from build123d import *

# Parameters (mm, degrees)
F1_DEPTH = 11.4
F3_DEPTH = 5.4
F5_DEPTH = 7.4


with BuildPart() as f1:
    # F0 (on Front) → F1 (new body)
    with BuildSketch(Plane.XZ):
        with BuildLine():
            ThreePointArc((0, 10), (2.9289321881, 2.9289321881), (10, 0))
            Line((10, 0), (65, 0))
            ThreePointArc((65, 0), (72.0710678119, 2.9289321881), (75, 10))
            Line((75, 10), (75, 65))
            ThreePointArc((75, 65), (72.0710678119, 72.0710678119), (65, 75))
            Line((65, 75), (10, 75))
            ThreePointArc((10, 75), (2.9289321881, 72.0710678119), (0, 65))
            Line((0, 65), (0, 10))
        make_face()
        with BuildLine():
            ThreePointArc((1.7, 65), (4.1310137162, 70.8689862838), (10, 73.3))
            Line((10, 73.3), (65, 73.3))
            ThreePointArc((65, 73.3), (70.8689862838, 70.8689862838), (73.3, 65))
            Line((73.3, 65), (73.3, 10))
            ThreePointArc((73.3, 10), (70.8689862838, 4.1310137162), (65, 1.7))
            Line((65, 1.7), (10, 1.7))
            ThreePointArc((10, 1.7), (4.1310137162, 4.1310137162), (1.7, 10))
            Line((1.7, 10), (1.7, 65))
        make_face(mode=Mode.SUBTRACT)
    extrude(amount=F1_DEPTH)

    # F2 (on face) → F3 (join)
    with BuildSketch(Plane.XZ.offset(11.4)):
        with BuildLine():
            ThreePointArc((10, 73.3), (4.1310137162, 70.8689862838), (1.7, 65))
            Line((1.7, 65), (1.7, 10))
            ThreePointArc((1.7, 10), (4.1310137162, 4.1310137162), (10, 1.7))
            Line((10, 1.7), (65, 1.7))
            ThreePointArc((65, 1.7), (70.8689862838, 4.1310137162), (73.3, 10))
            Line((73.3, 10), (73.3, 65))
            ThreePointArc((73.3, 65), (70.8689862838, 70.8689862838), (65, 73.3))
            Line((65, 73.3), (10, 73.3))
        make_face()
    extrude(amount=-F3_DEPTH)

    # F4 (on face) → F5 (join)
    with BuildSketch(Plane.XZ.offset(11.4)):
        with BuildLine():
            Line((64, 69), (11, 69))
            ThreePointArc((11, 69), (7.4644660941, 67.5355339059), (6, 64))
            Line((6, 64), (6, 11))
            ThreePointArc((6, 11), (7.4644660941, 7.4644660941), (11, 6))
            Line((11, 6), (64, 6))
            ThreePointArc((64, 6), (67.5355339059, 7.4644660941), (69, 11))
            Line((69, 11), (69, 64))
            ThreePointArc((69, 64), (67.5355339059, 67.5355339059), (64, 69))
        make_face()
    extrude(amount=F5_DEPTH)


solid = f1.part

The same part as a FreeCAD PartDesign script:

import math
import FreeCAD as App
import Part
import Sketcher

V = App.Vector
Q = App.Units.Quantity

doc = App.newDocument("Part")
body = doc.addObject("PartDesign::Body", "Body")

sketch1 = doc.addObject("Sketcher::SketchObject", "Sketch")
body.addObject(sketch1)
sketch1.AttachmentSupport = (doc.XZ_Plane, [""])
sketch1.MapMode = "FlatFace"
sketch1.addGeometry(Part.ArcOfCircle(Part.Circle(V(10, 10, 0), V(0, 0, 1), 10), math.radians(180), math.radians(270)), False)
sketch1.addGeometry(Part.LineSegment(V(10, 0, 0), V(65, 0, 0)), False)
sketch1.addGeometry(Part.ArcOfCircle(Part.Circle(V(65, 10, 0), V(0, 0, 1), 10), math.radians(-90), math.radians(0)), False)
sketch1.addGeometry(Part.LineSegment(V(75, 10, 0), V(75, 65, 0)), False)
sketch1.addGeometry(Part.ArcOfCircle(Part.Circle(V(65, 65, 0), V(0, 0, 1), 10), math.radians(0), math.radians(90)), False)
sketch1.addGeometry(Part.LineSegment(V(65, 75, 0), V(10, 75, 0)), False)
sketch1.addGeometry(Part.ArcOfCircle(Part.Circle(V(10, 65, 0), V(0, 0, 1), 10), math.radians(90), math.radians(180)), False)
sketch1.addGeometry(Part.LineSegment(V(0, 65, 0), V(0, 10, 0)), False)
sketch1.addGeometry(Part.LineSegment(V(2, 10, 0), V(2, 65, 0)), False)
sketch1.addGeometry(Part.ArcOfCircle(Part.Circle(V(10, 65, 0), V(0, 0, 1), 8), math.radians(90), math.radians(180)), False)
sketch1.addGeometry(Part.LineSegment(V(10, 73, 0), V(65, 73, 0)), False)
sketch1.addGeometry(Part.ArcOfCircle(Part.Circle(V(65, 65, 0), V(0, 0, 1), 8), math.radians(0), math.radians(90)), False)
sketch1.addGeometry(Part.LineSegment(V(73, 65, 0), V(73, 10, 0)), False)
sketch1.addGeometry(Part.ArcOfCircle(Part.Circle(V(65, 10, 0), V(0, 0, 1), 8), math.radians(-90), math.radians(0)), False)
sketch1.addGeometry(Part.LineSegment(V(65, 2, 0), V(10, 2, 0)), False)
sketch1.addGeometry(Part.ArcOfCircle(Part.Circle(V(10, 10, 0), V(0, 0, 1), 8), math.radians(180), math.radians(270)), False)
sketch1.addConstraint(Sketcher.Constraint("Tangent", 0, 2, 1, 1))
sketch1.addConstraint(Sketcher.Constraint("Tangent", 1, 2, 2, 1))
sketch1.addConstraint(Sketcher.Constraint("Tangent", 2, 2, 3, 1))
sketch1.addConstraint(Sketcher.Constraint("Tangent", 3, 2, 4, 1))
sketch1.addConstraint(Sketcher.Constraint("Tangent", 4, 2, 5, 1))
sketch1.addConstraint(Sketcher.Constraint("Tangent", 5, 2, 6, 1))
sketch1.addConstraint(Sketcher.Constraint("Tangent", 6, 2, 7, 1))
sketch1.addConstraint(Sketcher.Constraint("Tangent", 7, 2, 0, 1))
sketch1.addConstraint(Sketcher.Constraint("Tangent", 8, 2, 9, 2))
sketch1.addConstraint(Sketcher.Constraint("Tangent", 9, 1, 10, 1))
sketch1.addConstraint(Sketcher.Constraint("Tangent", 10, 2, 11, 2))
sketch1.addConstraint(Sketcher.Constraint("Tangent", 11, 1, 12, 1))
sketch1.addConstraint(Sketcher.Constraint("Tangent", 12, 2, 13, 2))
sketch1.addConstraint(Sketcher.Constraint("Tangent", 13, 1, 14, 1))
sketch1.addConstraint(Sketcher.Constraint("Tangent", 14, 2, 15, 2))
sketch1.addConstraint(Sketcher.Constraint("Tangent", 15, 1, 8, 1))
sketch1.addConstraint(Sketcher.Constraint("Horizontal", 1))
sketch1.addConstraint(Sketcher.Constraint("Vertical", 3))
sketch1.addConstraint(Sketcher.Constraint("Horizontal", 5))
sketch1.addConstraint(Sketcher.Constraint("Vertical", 7))
sketch1.addConstraint(Sketcher.Constraint("Vertical", 8))
sketch1.addConstraint(Sketcher.Constraint("Horizontal", 10))
sketch1.addConstraint(Sketcher.Constraint("Vertical", 12))
sketch1.addConstraint(Sketcher.Constraint("Horizontal", 14))
sketch1.addConstraint(Sketcher.Constraint("Coincident", 9, 3, 6, 3))
sketch1.addConstraint(Sketcher.Constraint("Coincident", 11, 3, 4, 3))
sketch1.addConstraint(Sketcher.Constraint("Coincident", 13, 3, 2, 3))
sketch1.addConstraint(Sketcher.Constraint("Equal", 0, 2))
sketch1.addConstraint(Sketcher.Constraint("Equal", 2, 4))
sketch1.addConstraint(Sketcher.Constraint("Equal", 4, 6))
sketch1.addConstraint(Sketcher.Constraint("Equal", 13, 15))
sketch1.addConstraint(Sketcher.Constraint("PointOnObject", 0, 2, -1))
sketch1.addConstraint(Sketcher.Constraint("PointOnObject", 6, 2, -2))
sketch1.addConstraint(Sketcher.Constraint("Equal", 14, 3))
sketch1.addConstraint(Sketcher.Constraint("Radius", 0, Q("10 mm")))
sketch1.addConstraint(Sketcher.Constraint("Radius", 9, Q("8.3 mm")))
sketch1.addConstraint(Sketcher.Constraint("DistanceX", 1, 1, 1, 2, Q("55 mm")))
pad1 = doc.addObject("PartDesign::Pad", "Pad")
body.addObject(pad1)
pad1.Profile = sketch1
pad1.Length = 11.4

sketch2 = doc.addObject("Sketcher::SketchObject", "Sketch001")
body.addObject(sketch2)
sketch2.AttachmentSupport = (doc.XZ_Plane, [""])
sketch2.MapMode = "FlatFace"
sketch2.AttachmentOffset = App.Placement(V(0, 0, 11.4), App.Rotation())
sketch2.addGeometry(Part.ArcOfCircle(Part.Circle(V(10, 65, 0), V(0, 0, 1), 8), math.radians(90), math.radians(180)), False)
sketch2.addGeometry(Part.LineSegment(V(2, 65, 0), V(2, 10, 0)), False)
sketch2.addGeometry(Part.ArcOfCircle(Part.Circle(V(10, 10, 0), V(0, 0, 1), 8), math.radians(180), math.radians(270)), False)
sketch2.addGeometry(Part.LineSegment(V(10, 2, 0), V(65, 2, 0)), False)
sketch2.addGeometry(Part.ArcOfCircle(Part.Circle(V(65, 10, 0), V(0, 0, 1), 8), math.radians(-90), math.radians(0)), False)
sketch2.addGeometry(Part.LineSegment(V(73, 10, 0), V(73, 65, 0)), False)
sketch2.addGeometry(Part.ArcOfCircle(Part.Circle(V(65, 65, 0), V(0, 0, 1), 8), math.radians(0), math.radians(90)), False)
sketch2.addGeometry(Part.LineSegment(V(65, 73, 0), V(10, 73, 0)), False)
sketch2.addConstraint(Sketcher.Constraint("Tangent", 0, 2, 1, 1))
sketch2.addConstraint(Sketcher.Constraint("Tangent", 1, 2, 2, 1))
sketch2.addConstraint(Sketcher.Constraint("Tangent", 2, 2, 3, 1))
sketch2.addConstraint(Sketcher.Constraint("Tangent", 3, 2, 4, 1))
sketch2.addConstraint(Sketcher.Constraint("Tangent", 4, 2, 5, 1))
sketch2.addConstraint(Sketcher.Constraint("Tangent", 5, 2, 6, 1))
sketch2.addConstraint(Sketcher.Constraint("Tangent", 6, 2, 7, 1))
sketch2.addConstraint(Sketcher.Constraint("Tangent", 7, 2, 0, 1))
sketch2.addConstraint(Sketcher.Constraint("Vertical", 1))
sketch2.addConstraint(Sketcher.Constraint("Horizontal", 3))
sketch2.addConstraint(Sketcher.Constraint("Vertical", 5))
sketch2.addConstraint(Sketcher.Constraint("Horizontal", 7))
sketch2.addConstraint(Sketcher.Constraint("Equal", 0, 2))
sketch2.addConstraint(Sketcher.Constraint("Equal", 2, 4))
sketch2.addConstraint(Sketcher.Constraint("Equal", 4, 6))
sketch2.addConstraint(Sketcher.Constraint("Equal", 7, 1))
sketch2.addConstraint(Sketcher.Constraint("Radius", 0, Q("8.3 mm")))
sketch2.addConstraint(Sketcher.Constraint("DistanceX", 3, 1, 3, 2, Q("55 mm")))
sketch2.addConstraint(Sketcher.Constraint("DistanceX", -1, 1, 0, 3, Q("10 mm")))
sketch2.addConstraint(Sketcher.Constraint("DistanceY", -1, 1, 0, 3, Q("65 mm")))
pad2 = doc.addObject("PartDesign::Pad", "Pad001")
body.addObject(pad2)
pad2.Profile = sketch2
pad2.Length = 5.4
pad2.Reversed = True

sketch3 = doc.addObject("Sketcher::SketchObject", "Sketch002")
body.addObject(sketch3)
sketch3.AttachmentSupport = (doc.XZ_Plane, [""])
sketch3.MapMode = "FlatFace"
sketch3.AttachmentOffset = App.Placement(V(0, 0, 11.4), App.Rotation())
sketch3.addGeometry(Part.LineSegment(V(64, 69, 0), V(11, 69, 0)), False)
sketch3.addGeometry(Part.ArcOfCircle(Part.Circle(V(11, 64, 0), V(0, 0, 1), 5), math.radians(90), math.radians(180)), False)
sketch3.addGeometry(Part.LineSegment(V(6, 64, 0), V(6, 11, 0)), False)
sketch3.addGeometry(Part.ArcOfCircle(Part.Circle(V(11, 11, 0), V(0, 0, 1), 5), math.radians(180), math.radians(270)), False)
sketch3.addGeometry(Part.LineSegment(V(11, 6, 0), V(64, 6, 0)), False)
sketch3.addGeometry(Part.ArcOfCircle(Part.Circle(V(64, 11, 0), V(0, 0, 1), 5), math.radians(-90), math.radians(0)), False)
sketch3.addGeometry(Part.LineSegment(V(69, 11, 0), V(69, 64, 0)), False)
sketch3.addGeometry(Part.ArcOfCircle(Part.Circle(V(64, 64, 0), V(0, 0, 1), 5), math.radians(0), math.radians(90)), False)
sketch3.addConstraint(Sketcher.Constraint("Tangent", 0, 2, 1, 1))
sketch3.addConstraint(Sketcher.Constraint("Tangent", 1, 2, 2, 1))
sketch3.addConstraint(Sketcher.Constraint("Tangent", 2, 2, 3, 1))
sketch3.addConstraint(Sketcher.Constraint("Tangent", 3, 2, 4, 1))
sketch3.addConstraint(Sketcher.Constraint("Tangent", 4, 2, 5, 1))
sketch3.addConstraint(Sketcher.Constraint("Tangent", 5, 2, 6, 1))
sketch3.addConstraint(Sketcher.Constraint("Tangent", 6, 2, 7, 1))
sketch3.addConstraint(Sketcher.Constraint("Tangent", 7, 2, 0, 1))
sketch3.addConstraint(Sketcher.Constraint("Horizontal", 0))
sketch3.addConstraint(Sketcher.Constraint("Vertical", 2))
sketch3.addConstraint(Sketcher.Constraint("Horizontal", 4))
sketch3.addConstraint(Sketcher.Constraint("Vertical", 6))
sketch3.addConstraint(Sketcher.Constraint("Equal", 1, 3))
sketch3.addConstraint(Sketcher.Constraint("Equal", 3, 5))
sketch3.addConstraint(Sketcher.Constraint("Equal", 5, 7))
sketch3.addConstraint(Sketcher.Constraint("Equal", 4, 2))
sketch3.addConstraint(Sketcher.Constraint("Radius", 1, Q("5 mm")))
sketch3.addConstraint(Sketcher.Constraint("DistanceX", 0, 2, 0, 1, Q("53 mm")))
sketch3.addConstraint(Sketcher.Constraint("DistanceX", -1, 1, 1, 3, Q("11 mm")))
sketch3.addConstraint(Sketcher.Constraint("DistanceY", -1, 1, 1, 3, Q("64 mm")))
pad3 = doc.addObject("PartDesign::Pad", "Pad002")
body.addObject(pad3)
pad3.Profile = sketch3
pad3.Length = 7.4

doc.recompute()
